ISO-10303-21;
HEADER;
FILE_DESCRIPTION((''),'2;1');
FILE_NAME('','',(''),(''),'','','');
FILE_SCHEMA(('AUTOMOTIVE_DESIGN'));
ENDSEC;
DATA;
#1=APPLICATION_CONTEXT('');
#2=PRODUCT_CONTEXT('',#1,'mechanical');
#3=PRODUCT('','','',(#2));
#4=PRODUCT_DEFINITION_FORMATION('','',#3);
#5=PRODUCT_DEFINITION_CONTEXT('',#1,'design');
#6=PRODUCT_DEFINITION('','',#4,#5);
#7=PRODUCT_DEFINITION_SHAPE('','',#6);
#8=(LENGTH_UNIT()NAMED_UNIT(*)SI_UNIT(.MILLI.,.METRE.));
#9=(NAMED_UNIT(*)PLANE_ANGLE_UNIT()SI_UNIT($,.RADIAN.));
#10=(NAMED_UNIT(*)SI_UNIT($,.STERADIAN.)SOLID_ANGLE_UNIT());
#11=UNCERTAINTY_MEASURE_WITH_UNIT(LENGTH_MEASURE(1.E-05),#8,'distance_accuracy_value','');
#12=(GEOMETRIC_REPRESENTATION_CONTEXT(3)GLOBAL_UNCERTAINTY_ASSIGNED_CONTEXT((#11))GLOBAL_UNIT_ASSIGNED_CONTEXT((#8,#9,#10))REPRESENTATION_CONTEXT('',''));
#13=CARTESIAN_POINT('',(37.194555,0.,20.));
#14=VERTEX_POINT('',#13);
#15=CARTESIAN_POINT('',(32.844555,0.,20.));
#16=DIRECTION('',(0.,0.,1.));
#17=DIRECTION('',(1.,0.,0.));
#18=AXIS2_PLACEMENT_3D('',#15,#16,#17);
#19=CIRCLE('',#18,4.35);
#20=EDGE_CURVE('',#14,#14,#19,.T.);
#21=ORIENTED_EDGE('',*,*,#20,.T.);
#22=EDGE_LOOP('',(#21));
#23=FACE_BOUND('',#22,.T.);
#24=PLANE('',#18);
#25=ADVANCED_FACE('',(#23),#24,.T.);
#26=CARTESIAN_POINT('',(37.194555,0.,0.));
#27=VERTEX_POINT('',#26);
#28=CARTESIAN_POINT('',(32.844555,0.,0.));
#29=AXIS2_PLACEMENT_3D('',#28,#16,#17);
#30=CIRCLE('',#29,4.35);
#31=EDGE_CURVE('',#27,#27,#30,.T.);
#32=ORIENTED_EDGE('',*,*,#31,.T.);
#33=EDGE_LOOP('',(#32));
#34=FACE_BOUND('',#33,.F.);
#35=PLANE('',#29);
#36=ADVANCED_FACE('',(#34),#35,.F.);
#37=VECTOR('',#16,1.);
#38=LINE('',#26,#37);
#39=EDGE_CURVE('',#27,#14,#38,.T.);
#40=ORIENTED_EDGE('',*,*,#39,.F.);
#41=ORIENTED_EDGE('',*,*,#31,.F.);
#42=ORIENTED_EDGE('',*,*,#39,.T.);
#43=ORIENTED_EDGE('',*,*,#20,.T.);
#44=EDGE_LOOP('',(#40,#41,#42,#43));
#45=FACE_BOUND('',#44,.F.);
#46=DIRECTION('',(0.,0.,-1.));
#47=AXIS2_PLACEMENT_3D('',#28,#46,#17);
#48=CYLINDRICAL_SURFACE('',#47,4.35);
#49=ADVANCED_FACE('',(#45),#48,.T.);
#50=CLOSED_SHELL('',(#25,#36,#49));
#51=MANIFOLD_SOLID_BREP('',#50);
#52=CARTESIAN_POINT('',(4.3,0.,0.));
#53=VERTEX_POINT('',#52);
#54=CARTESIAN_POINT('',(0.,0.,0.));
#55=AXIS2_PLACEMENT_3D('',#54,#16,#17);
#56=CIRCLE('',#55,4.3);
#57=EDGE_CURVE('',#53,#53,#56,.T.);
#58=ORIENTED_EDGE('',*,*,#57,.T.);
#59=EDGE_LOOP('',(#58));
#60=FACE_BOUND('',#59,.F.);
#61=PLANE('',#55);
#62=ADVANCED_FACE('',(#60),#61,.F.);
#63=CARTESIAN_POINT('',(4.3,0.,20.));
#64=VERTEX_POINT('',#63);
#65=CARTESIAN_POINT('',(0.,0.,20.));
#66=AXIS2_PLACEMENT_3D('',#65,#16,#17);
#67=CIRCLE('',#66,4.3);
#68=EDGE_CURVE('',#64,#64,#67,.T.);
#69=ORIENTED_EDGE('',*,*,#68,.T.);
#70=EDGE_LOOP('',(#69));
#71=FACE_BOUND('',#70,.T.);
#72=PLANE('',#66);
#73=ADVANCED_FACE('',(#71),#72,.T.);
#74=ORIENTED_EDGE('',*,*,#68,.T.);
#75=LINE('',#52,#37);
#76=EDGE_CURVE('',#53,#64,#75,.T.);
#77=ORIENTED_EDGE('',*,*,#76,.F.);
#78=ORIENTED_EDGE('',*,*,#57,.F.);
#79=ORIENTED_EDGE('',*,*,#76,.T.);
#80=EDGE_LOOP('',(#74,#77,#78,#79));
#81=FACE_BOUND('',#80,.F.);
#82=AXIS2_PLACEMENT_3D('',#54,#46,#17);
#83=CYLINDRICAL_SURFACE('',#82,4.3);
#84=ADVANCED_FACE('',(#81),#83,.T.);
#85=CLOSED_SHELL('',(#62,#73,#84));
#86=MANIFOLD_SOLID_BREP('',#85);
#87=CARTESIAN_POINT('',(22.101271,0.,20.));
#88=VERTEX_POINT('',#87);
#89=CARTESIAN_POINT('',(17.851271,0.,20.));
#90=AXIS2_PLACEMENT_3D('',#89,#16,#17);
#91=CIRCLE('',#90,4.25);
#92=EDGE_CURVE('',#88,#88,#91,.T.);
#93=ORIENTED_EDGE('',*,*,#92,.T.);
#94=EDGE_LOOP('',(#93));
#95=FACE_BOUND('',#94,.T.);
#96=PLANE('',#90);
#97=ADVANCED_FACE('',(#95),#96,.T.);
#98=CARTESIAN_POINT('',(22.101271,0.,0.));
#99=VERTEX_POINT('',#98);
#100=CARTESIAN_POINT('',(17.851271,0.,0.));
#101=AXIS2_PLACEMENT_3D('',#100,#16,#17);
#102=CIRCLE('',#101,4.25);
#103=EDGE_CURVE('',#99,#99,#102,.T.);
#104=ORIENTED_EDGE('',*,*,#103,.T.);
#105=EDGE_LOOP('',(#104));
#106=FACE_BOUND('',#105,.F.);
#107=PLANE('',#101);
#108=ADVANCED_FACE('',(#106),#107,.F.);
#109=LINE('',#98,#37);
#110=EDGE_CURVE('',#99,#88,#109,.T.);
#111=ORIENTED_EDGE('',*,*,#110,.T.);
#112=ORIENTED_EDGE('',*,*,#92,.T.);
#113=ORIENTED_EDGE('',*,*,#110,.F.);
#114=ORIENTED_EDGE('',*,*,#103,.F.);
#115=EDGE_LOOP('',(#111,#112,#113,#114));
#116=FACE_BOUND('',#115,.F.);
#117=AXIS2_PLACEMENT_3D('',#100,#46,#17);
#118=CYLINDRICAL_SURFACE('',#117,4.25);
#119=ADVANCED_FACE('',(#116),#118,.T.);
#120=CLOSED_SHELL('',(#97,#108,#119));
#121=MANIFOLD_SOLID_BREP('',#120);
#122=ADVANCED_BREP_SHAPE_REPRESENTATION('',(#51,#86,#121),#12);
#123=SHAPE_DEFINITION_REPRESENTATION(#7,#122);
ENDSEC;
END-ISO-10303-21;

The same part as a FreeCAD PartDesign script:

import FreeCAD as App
import Part
import Sketcher
Q = App.Units.Quantity

doc = App.newDocument("Part")
body = doc.addObject("PartDesign::Body", "Body")
body.AllowCompound = True

# Sketch on XY plane
sketch1 = body.newObject("Sketcher::SketchObject", "Sketch")
sketch1.AttachmentSupport = (doc.getObject("XY_Plane"), [""])
sketch1.MapMode = "FlatFace"
sketch1.addGeometry([
    Part.Circle(App.Vector(0, 0, 0), App.Vector(0, 0, 1), 4.3),
    Part.Circle(App.Vector(17.9, 0, 0), App.Vector(0, 0, 1), 4.2),
    Part.Circle(App.Vector(32.8, 0, 0), App.Vector(0, 0, 1), 4.3),
], False)
sketch1.addConstraint([
    Sketcher.Constraint("Coincident", 0, 3, -1, 1),
    Sketcher.Constraint("PointOnObject", 1, 3, -1),
    Sketcher.Constraint("PointOnObject", 2, 3, -1),
    Sketcher.Constraint("Diameter", 0, Q("8.6 mm")),
    Sketcher.Constraint("Diameter", 1, Q("8.5 mm")),
    Sketcher.Constraint("Diameter", 2, Q("8.7 mm")),
    Sketcher.Constraint("DistanceX", -1, 1, 1, 3, Q("17.851271 mm")),
    Sketcher.Constraint("DistanceX", -1, 1, 2, 3, Q("32.844555 mm")),
])
pad1 = body.newObject("PartDesign::Pad", "Pad")
pad1.Profile = sketch1
pad1.Length = 20

doc.recompute()
